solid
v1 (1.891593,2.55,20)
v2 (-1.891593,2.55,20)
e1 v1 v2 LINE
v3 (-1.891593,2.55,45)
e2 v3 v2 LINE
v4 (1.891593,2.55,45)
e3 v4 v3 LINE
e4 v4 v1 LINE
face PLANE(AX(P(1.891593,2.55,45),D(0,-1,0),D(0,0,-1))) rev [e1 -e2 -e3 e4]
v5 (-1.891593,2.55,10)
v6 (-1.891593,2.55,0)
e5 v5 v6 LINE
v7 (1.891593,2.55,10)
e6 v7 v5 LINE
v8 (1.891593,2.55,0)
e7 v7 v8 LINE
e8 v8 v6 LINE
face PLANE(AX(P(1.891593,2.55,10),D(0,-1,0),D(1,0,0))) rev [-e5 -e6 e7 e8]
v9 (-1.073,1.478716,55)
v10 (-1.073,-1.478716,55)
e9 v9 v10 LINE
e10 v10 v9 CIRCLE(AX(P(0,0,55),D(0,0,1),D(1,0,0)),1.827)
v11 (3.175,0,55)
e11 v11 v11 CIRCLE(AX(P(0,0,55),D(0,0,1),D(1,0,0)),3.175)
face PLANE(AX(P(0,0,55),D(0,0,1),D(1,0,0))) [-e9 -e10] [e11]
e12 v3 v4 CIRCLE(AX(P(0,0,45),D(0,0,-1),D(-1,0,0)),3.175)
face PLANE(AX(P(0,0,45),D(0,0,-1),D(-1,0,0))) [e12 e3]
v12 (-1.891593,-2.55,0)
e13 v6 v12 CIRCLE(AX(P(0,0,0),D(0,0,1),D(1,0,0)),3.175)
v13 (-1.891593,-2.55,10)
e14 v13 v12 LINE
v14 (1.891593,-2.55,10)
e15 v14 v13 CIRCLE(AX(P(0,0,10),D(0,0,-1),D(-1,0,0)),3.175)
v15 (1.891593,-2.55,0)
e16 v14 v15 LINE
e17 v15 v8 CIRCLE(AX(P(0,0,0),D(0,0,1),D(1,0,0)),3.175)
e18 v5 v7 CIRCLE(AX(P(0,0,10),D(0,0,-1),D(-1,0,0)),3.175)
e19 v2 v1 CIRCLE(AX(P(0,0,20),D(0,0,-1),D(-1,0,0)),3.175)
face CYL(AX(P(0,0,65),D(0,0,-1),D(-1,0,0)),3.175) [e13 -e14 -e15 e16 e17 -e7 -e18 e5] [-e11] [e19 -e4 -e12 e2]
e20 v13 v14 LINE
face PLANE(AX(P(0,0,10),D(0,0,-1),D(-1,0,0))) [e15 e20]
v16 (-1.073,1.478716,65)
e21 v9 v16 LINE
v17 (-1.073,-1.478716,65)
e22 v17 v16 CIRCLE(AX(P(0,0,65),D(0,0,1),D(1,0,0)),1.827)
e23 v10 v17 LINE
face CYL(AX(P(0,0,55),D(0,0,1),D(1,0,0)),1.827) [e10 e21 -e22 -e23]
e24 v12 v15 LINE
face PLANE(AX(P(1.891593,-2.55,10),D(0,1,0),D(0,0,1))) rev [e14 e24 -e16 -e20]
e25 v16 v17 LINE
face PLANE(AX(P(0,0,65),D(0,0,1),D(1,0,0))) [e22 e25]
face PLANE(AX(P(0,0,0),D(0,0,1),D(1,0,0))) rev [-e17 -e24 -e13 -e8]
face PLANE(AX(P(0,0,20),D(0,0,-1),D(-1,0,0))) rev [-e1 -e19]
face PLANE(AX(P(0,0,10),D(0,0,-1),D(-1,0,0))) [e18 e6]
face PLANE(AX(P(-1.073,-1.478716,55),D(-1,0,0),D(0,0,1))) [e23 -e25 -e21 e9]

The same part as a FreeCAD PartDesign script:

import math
import FreeCAD as App
import Part
import Sketcher

V = App.Vector

doc = App.newDocument("Part")
params = doc.addObject("Spreadsheet::Sheet", "Params")
for row, (alias, value) in enumerate([
    ("sketch1_diameter", "6.35 mm"),
    ("pad1_length", "65 mm"),
    ("pocket1_length", "10 mm"),
    ("pocket2_length", "25 mm"),
    ("sketch4_diameter", "6.35 mm"),
    ("pocket3_length", "10 mm"),
], start=1):
    params.set(f"A{row}", alias)
    params.set(f"B{row}", "=" + value)
    params.setAlias(f"B{row}", alias)

body = doc.addObject("PartDesign::Body", "Body")

# Sketch on XY plane
sketch1 = body.newObject("Sketcher::SketchObject", "Sketch")
sketch1.AttachmentSupport = (doc.getObject("XY_Plane"), [""])
sketch1.MapMode = "FlatFace"
sketch1.addGeometry(Part.Circle(V(0, 0, 0), V(0, 0, 1), 3.175), False)
sketch1.addConstraint(Sketcher.Constraint("Coincident", 0, 3, -1, 1))
sketch1.addConstraint(Sketcher.Constraint("Diameter", 0, 6.35))
sketch1.setExpression("Constraints[1]", "Params.sketch1_diameter")
pad1 = body.newObject("PartDesign::Pad", "Pad")
pad1.Profile = sketch1
pad1.setExpression("Length", "Params.pad1_length")

# Sketch on XY plane
sketch2 = body.newObject("Sketcher::SketchObject", "Sketch001")
sketch2.AttachmentSupport = (doc.getObject("XY_Plane"), [""])
sketch2.MapMode = "FlatFace"
sketch2.addGeometry(Part.LineSegment(V(1.891593, 2.55, 0), V(-1.891593, 2.55, 0)), False)
sketch2.addGeometry(Part.ArcOfCircle(Part.Circle(V(0, 0, 0), V(0, 0, 1), 3.175), math.radians(53.431929), math.radians(126.568071)), False)
sketch2.addGeometry(Part.LineSegment(V(-1.891593, -2.55, 0), V(1.891593, -2.55, 0)), False)
sketch2.addGeometry(Part.ArcOfCircle(Part.Circle(V(0, 0, 0), V(0, 0, 1), 3.175), math.radians(-126.568071), math.radians(-53.431929)), False)
sketch2.addConstraint(Sketcher.Constraint("Coincident", 0, 1, 1, 1))
sketch2.addConstraint(Sketcher.Constraint("Coincident", 1, 2, 0, 2))
sketch2.addConstraint(Sketcher.Constraint("Coincident", 2, 1, 3, 1))
sketch2.addConstraint(Sketcher.Constraint("Coincident", 3, 2, 2, 2))
sketch2.addConstraint(Sketcher.Constraint("Horizontal", 0))
sketch2.addConstraint(Sketcher.Constraint("Horizontal", 2))
sketch2.addConstraint(Sketcher.Constraint("Coincident", 1, 3, -1, 1))
sketch2.addConstraint(Sketcher.Constraint("Coincident", 3, 3, -1, 1))
sketch2.addConstraint(Sketcher.Constraint("Equal", 1, 3))
sketch2.addConstraint(Sketcher.Constraint("Vertical", 1, 2, 2, 1))
sketch2.addConstraint(Sketcher.Constraint("Radius", 1, 3.175))
sketch2.addConstraint(Sketcher.Constraint("DistanceY", 2, 1, 1, 2, 5.1))
pocket1 = body.newObject("PartDesign::Pocket", "Pocket")
pocket1.Profile = sketch2
pocket1.setExpression("Length", "Params.pocket1_length")
pocket1.Reversed = True

# Sketch on XY plane
sketch3 = body.newObject("Sketcher::SketchObject", "Sketch002")
sketch3.AttachmentSupport = (doc.getObject("XY_Plane"), [""])
sketch3.MapMode = "FlatFace"
sketch3.AttachmentOffset = App.Placement(V(0, 0, 20), App.Rotation())
sketch3.addGeometry(Part.LineSegment(V(1.891593, 2.55, 0), V(-1.891593, 2.55, 0)), False)
sketch3.addGeometry(Part.ArcOfCircle(Part.Circle(V(0, 0, 0), V(0, 0, 1), 3.175), math.radians(53.431929), math.radians(126.568071)), False)
sketch3.addConstraint(Sketcher.Constraint("Coincident", 0, 1, 1, 1))
sketch3.addConstraint(Sketcher.Constraint("Coincident", 1, 2, 0, 2))
sketch3.addConstraint(Sketcher.Constraint("Horizontal", 0))
sketch3.addConstraint(Sketcher.Constraint("Coincident", 1, 3, -1, 1))
sketch3.addConstraint(Sketcher.Constraint("Radius", 1, 3.175))
sketch3.addConstraint(Sketcher.Constraint("DistanceY", -1, 1, 0, 1, 2.55))
pocket2 = body.newObject("PartDesign::Pocket", "Pocket001")
pocket2.Profile = sketch3
pocket2.setExpression("Length", "Params.pocket2_length")
pocket2.Reversed = True

# Sketch on XY plane
sketch4 = body.newObject("Sketcher::SketchObject", "Sketch003")
sketch4.AttachmentSupport = (doc.getObject("XY_Plane"), [""])
sketch4.MapMode = "FlatFace"
sketch4.AttachmentOffset = App.Placement(V(0, 0, 55), App.Rotation())
sketch4.addGeometry(Part.Circle(V(0, 0, 0), V(0, 0, 1), 3.175), False)
sketch4.addGeometry(Part.ArcOfCircle(Part.Circle(V(0, 0, 0), V(0, 0, 1), 1.827), math.radians(-125.965754), math.radians(125.965754)), False)
sketch4.addGeometry(Part.LineSegment(V(-1.073, -1.478716, 0), V(-1.073, 1.478716, 0)), False)
sketch4.addConstraint(Sketcher.Constraint("Coincident", 1, 1, 2, 1))
sketch4.addConstraint(Sketcher.Constraint("Coincident", 2, 2, 1, 2))
sketch4.addConstraint(Sketcher.Constraint("Vertical", 2))
sketch4.addConstraint(Sketcher.Constraint("Coincident", 0, 3, -1, 1))
sketch4.addConstraint(Sketcher.Constraint("Coincident", 1, 3, -1, 1))
sketch4.addConstraint(Sketcher.Constraint("Diameter", 0, 6.35))
sketch4.addConstraint(Sketcher.Constraint("Radius", 1, 1.827))
sketch4.addConstraint(Sketcher.Constraint("DistanceX", 1, 1, -1, 1, 1.073))
sketch4.setExpression("Constraints[5]", "Params.sketch4_diameter")
pocket3 = body.newObject("PartDesign::Pocket", "Pocket002")
pocket3.Profile = sketch4
pocket3.setExpression("Length", "Params.pocket3_length")
pocket3.Reversed = True

doc.recompute()
